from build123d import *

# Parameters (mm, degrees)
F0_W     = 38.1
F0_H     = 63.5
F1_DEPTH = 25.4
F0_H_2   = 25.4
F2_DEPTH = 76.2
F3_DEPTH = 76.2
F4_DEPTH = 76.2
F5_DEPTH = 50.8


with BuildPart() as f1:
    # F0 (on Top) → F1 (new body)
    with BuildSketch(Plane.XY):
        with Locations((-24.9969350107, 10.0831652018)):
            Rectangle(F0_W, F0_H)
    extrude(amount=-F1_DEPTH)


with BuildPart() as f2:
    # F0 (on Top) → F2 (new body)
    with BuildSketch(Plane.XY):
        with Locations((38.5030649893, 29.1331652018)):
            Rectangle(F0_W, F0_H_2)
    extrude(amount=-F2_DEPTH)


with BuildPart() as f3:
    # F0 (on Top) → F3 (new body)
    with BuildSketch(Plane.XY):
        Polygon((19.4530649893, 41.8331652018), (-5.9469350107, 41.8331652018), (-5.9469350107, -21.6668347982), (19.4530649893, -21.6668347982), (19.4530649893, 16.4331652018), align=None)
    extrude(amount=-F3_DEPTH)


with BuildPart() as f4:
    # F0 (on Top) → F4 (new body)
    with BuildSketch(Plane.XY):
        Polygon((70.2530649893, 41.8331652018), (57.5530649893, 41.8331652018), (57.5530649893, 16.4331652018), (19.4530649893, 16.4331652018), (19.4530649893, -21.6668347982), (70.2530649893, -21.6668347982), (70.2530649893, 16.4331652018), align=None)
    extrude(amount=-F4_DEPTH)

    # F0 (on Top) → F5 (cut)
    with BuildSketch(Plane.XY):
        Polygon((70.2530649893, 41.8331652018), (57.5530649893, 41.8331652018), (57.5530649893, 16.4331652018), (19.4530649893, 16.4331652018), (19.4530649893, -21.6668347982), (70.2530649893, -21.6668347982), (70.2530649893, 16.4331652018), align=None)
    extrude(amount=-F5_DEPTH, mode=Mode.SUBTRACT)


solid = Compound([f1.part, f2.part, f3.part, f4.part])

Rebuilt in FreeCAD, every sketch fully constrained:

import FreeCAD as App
import Part
import Sketcher
from FreeCAD import Vector
Q = App.Units.Quantity


def add_polygon(sketch, points):
    """Adds a closed chain of lines whose ends are joined by coincident constraints."""
    first, n = sketch.GeometryCount, len(points)
    for a, b in zip(points, points[1:] + points[:1]):
        sketch.addGeometry(Part.LineSegment(App.Vector(*a, 0), App.Vector(*b, 0)), False)
    for i in range(n):
        sketch.addConstraint(Sketcher.Constraint("Coincident", first + i, 2, first + (i + 1) % n, 1))

doc = App.newDocument("Part")
body = doc.addObject("PartDesign::Body", "Body")

# Sketch on XY plane
sketch1 = body.newObject("Sketcher::SketchObject", "Sketch")
sketch1.AttachmentSupport = (doc.getObject("XY_Plane"), [""])
sketch1.MapMode = "FlatFace"
add_polygon(sketch1, [(-44, 42), (-44, -22), (-6, -22), (-6, 42)])  # lines 0-3
sketch1.addConstraint(Sketcher.Constraint("Vertical", 0))
sketch1.addConstraint(Sketcher.Constraint("Horizontal", 1))
sketch1.addConstraint(Sketcher.Constraint("Vertical", 2))
sketch1.addConstraint(Sketcher.Constraint("Horizontal", 3))
sketch1.addConstraint(Sketcher.Constraint("DistanceX", 1, 1, 1, 2, Q("1.5 in")))
sketch1.addConstraint(Sketcher.Constraint("DistanceY", 0, 2, 0, 1, Q("2.5 in")))
sketch1.addConstraint(Sketcher.Constraint("DistanceX", 0, 2, -1, 1, 44.046935))
sketch1.addConstraint(Sketcher.Constraint("DistanceY", 0, 2, -1, 1, 21.666835))
pad1 = body.newObject("PartDesign::Pad", "Pad")
pad1.Profile = sketch1
pad1.Length = Q("1 in")
pad1.Reversed = True
body2 = doc.addObject("PartDesign::Body", "Body001")

# Sketch on XY plane
sketch2 = body2.newObject("Sketcher::SketchObject", "Sketch001")
sketch2.AttachmentSupport = (doc.getObject("XY_Plane001"), [""])
sketch2.MapMode = "FlatFace"
add_polygon(sketch2, [(19, 42), (19, 16), (58, 16), (58, 42)])  # lines 0-3
sketch2.addConstraint(Sketcher.Constraint("Vertical", 0))
sketch2.addConstraint(Sketcher.Constraint("Horizontal", 1))
sketch2.addConstraint(Sketcher.Constraint("Vertical", 2))
sketch2.addConstraint(Sketcher.Constraint("Horizontal", 3))
sketch2.addConstraint(Sketcher.Constraint("DistanceY", 0, 2, 0, 1, Q("1 in")))
sketch2.addConstraint(Sketcher.Constraint("DistanceX", 1, 1, 1, 2, Q("1.5 in")))
sketch2.addConstraint(Sketcher.Constraint("DistanceX", -1, 1, 0, 2, 19.453065))
sketch2.addConstraint(Sketcher.Constraint("DistanceY", -1, 1, 0, 2, 16.433165))
pad2 = body2.newObject("PartDesign::Pad", "Pad001")
pad2.Profile = sketch2
pad2.Length = Q("3 in")
pad2.Reversed = True
body3 = doc.addObject("PartDesign::Body", "Body002")

# Sketch on XY plane
sketch3 = body3.newObject("Sketcher::SketchObject", "Sketch002")
sketch3.AttachmentSupport = (doc.getObject("XY_Plane002"), [""])
sketch3.MapMode = "FlatFace"
add_polygon(sketch3, [(19, 42), (-6, 42), (-6, -22), (19, -22)])  # lines 0-3
sketch3.addConstraint(Sketcher.Constraint("Horizontal", 0))
sketch3.addConstraint(Sketcher.Constraint("Vertical", 1))
sketch3.addConstraint(Sketcher.Constraint("Horizontal", 2))
sketch3.addConstraint(Sketcher.Constraint("Vertical", 3))
sketch3.addConstraint(Sketcher.Constraint("DistanceX", 0, 2, 0, 1, Q("1 in")))
sketch3.addConstraint(Sketcher.Constraint("DistanceY", 1, 2, 1, 1, Q("2.5 in")))
sketch3.addConstraint(Sketcher.Constraint("DistanceX", 0, 2, -1, 1, 5.946935))
sketch3.addConstraint(Sketcher.Constraint("DistanceY", -1, 1, 0, 2, 41.833165))
pad3 = body3.newObject("PartDesign::Pad", "Pad002")
pad3.Profile = sketch3
pad3.Length = Q("3 in")
pad3.Reversed = True
body4 = doc.addObject("PartDesign::Body", "Body003")

# Sketch on XY plane
sketch4 = body4.newObject("Sketcher::SketchObject", "Sketch003")
sketch4.AttachmentSupport = (doc.getObject("XY_Plane003"), [""])
sketch4.MapMode = "FlatFace"
add_polygon(sketch4, [(70, 42), (58, 42), (58, 16), (19, 16), (19, -22), (70, -22)])  # lines 0-5
sketch4.addConstraint(Sketcher.Constraint("Horizontal", 0))
sketch4.addConstraint(Sketcher.Constraint("Vertical", 1))
sketch4.addConstraint(Sketcher.Constraint("Horizontal", 2))
sketch4.addConstraint(Sketcher.Constraint("Vertical", 3))
sketch4.addConstraint(Sketcher.Constraint("Horizontal", 4))
sketch4.addConstraint(Sketcher.Constraint("Vertical", 5))
sketch4.addConstraint(Sketcher.Constraint("Equal", 2, 3))
sketch4.addConstraint(Sketcher.Constraint("DistanceX", 4, 1, 4, 2, Q("2 in")))
sketch4.addConstraint(Sketcher.Constraint("DistanceY", 1, 2, 1, 1, Q("1 in")))
sketch4.addConstraint(Sketcher.Constraint("DistanceX", 0, 2, 0, 1, Q("0.5 in")))
sketch4.addConstraint(Sketcher.Constraint("DistanceX", -1, 1, 0, 2, 57.553065))
sketch4.addConstraint(Sketcher.Constraint("DistanceY", -1, 1, 0, 2, 41.833165))
pad4 = body4.newObject("PartDesign::Pad", "Pad003")
pad4.Profile = sketch4
pad4.Length = Q("3 in")
pad4.Reversed = True

# Sketch on XY plane
sketch5 = body4.newObject("Sketcher::SketchObject", "Sketch004")
sketch5.AttachmentSupport = (doc.getObject("XY_Plane003"), [""])
sketch5.MapMode = "FlatFace"
add_polygon(sketch5, [(70, 42), (58, 42), (58, 16), (19, 16), (19, -22), (70, -22)])  # lines 0-5
sketch5.addConstraint(Sketcher.Constraint("Horizontal", 0))
sketch5.addConstraint(Sketcher.Constraint("Vertical", 1))
sketch5.addConstraint(Sketcher.Constraint("Horizontal", 2))
sketch5.addConstraint(Sketcher.Constraint("Vertical", 3))
sketch5.addConstraint(Sketcher.Constraint("Horizontal", 4))
sketch5.addConstraint(Sketcher.Constraint("Vertical", 5))
sketch5.addConstraint(Sketcher.Constraint("Equal", 2, 3))
sketch5.addConstraint(Sketcher.Constraint("DistanceX", 4, 1, 4, 2, Q("2 in")))
sketch5.addConstraint(Sketcher.Constraint("DistanceY", 1, 2, 1, 1, Q("1 in")))
sketch5.addConstraint(Sketcher.Constraint("DistanceX", 0, 2, 0, 1, Q("0.5 in")))
sketch5.addConstraint(Sketcher.Constraint("DistanceX", -1, 1, 0, 2, 57.553065))
sketch5.addConstraint(Sketcher.Constraint("DistanceY", -1, 1, 0, 2, 41.833165))
pocket1 = body4.newObject("PartDesign::Pocket", "Pocket")
pocket1.Profile = sketch5
pocket1.Length = Q("2 in")

doc.recompute()
